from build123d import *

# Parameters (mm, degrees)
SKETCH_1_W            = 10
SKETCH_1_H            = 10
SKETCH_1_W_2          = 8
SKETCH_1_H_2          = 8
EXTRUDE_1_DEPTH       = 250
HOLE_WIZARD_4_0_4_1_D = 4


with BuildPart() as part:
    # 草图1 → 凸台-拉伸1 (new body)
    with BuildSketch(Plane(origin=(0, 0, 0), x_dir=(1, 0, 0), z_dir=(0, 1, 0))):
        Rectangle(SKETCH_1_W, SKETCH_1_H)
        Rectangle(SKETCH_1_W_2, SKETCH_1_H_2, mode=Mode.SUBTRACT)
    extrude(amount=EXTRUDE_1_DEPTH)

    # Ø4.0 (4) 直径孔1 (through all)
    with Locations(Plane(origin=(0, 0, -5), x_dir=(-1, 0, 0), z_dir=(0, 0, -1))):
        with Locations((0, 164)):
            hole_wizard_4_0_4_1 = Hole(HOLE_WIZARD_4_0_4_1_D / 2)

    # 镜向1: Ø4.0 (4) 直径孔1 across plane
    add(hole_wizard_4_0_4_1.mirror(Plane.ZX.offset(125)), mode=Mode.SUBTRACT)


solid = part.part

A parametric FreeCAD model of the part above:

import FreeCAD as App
import Part
import Sketcher

V = App.Vector


def add_polygon(sketch, points):
    """Adds a closed chain of lines whose ends are joined by coincident constraints."""
    first, n = sketch.GeometryCount, len(points)
    for a, b in zip(points, points[1:] + points[:1]):
        sketch.addGeometry(Part.LineSegment(App.Vector(*a, 0), App.Vector(*b, 0)), False)
    for i in range(n):
        sketch.addConstraint(Sketcher.Constraint("Coincident", first + i, 2, first + (i + 1) % n, 1))

doc = App.newDocument("Part")
params = doc.addObject("Spreadsheet::Sheet", "Params")
for row, (alias, value) in enumerate([
    ("sketch1_width", "10 mm"),
    ("sketch1_width2", "8 mm"),
    ("pad1_length", "250 mm"),
    ("sketch2_diameter", "4 mm"),
    ("hole_diameter", "4 mm"),
], start=1):
    params.set(f"A{row}", alias)
    params.set(f"B{row}", "=" + value)
    params.setAlias(f"B{row}", alias)

body = doc.addObject("PartDesign::Body", "Body")

sketch1 = body.newObject("Sketcher::SketchObject", "Sketch")
sketch1.AttachmentSupport = (doc.getObject("XZ_Plane"), [""])
sketch1.MapMode = "FlatFace"
add_polygon(sketch1, [(-5, -5), (-5, 5), (5, 5), (5, -5)])
add_polygon(sketch1, [(4, 4), (-4, 4), (-4, -4), (4, -4)])
sketch1.addConstraint(Sketcher.Constraint("Vertical", 0))
sketch1.addConstraint(Sketcher.Constraint("Horizontal", 1))
sketch1.addConstraint(Sketcher.Constraint("Vertical", 2))
sketch1.addConstraint(Sketcher.Constraint("Horizontal", 3))
sketch1.addConstraint(Sketcher.Constraint("Horizontal", 4))
sketch1.addConstraint(Sketcher.Constraint("Vertical", 5))
sketch1.addConstraint(Sketcher.Constraint("Horizontal", 6))
sketch1.addConstraint(Sketcher.Constraint("Vertical", 7))
sketch1.addConstraint(Sketcher.Constraint("Symmetric", 0, 2, 2, 2, -1, 1))
sketch1.addConstraint(Sketcher.Constraint("Symmetric", 4, 2, 6, 2, -1, 1))
sketch1.addConstraint(Sketcher.Constraint("Equal", 3, 0))
sketch1.addConstraint(Sketcher.Constraint("Equal", 6, 5))
sketch1.addConstraint(Sketcher.Constraint("DistanceX", 1, 1, 1, 2, 10.0))
sketch1.addConstraint(Sketcher.Constraint("DistanceX", 4, 2, 4, 1, 8.0))
sketch1.setExpression("Constraints[20]", "Params.sketch1_width")
sketch1.setExpression("Constraints[21]", "Params.sketch1_width2")
pad1 = body.newObject("PartDesign::Pad", "Pad")
pad1.Profile = sketch1
pad1.setExpression("Length", "Params.pad1_length")
pad1.Reversed = True

sketch2 = body.newObject("Sketcher::SketchObject", "Sketch001")
sketch2.AttachmentSupport = (doc.getObject("XY_Plane"), [""])
sketch2.MapMode = "FlatFace"
sketch2.AttachmentOffset = App.Placement(V(0, 0, -5), App.Rotation())
sketch2.addGeometry(Part.Circle(V(0, 164, 0), V(0, 0, 1), 2), False)
sketch2.addConstraint(Sketcher.Constraint("PointOnObject", 0, 3, -2))
sketch2.addConstraint(Sketcher.Constraint("Diameter", 0, 4.0))
sketch2.addConstraint(Sketcher.Constraint("DistanceY", -1, 1, 0, 3, 164.0))
sketch2.setExpression("Constraints[1]", "Params.sketch2_diameter")
doc.recompute()
hole = body.newObject("PartDesign::Hole", "Hole")
hole.Profile = sketch2
hole.ThreadType = "None"
hole.setExpression("Diameter", "Params.hole_diameter")
hole.DepthType = "ThroughAll"
hole.Reversed = True
doc.recompute()

datumplane = body.newObject("PartDesign::Plane", "DatumPlane")
datumplane.AttachmentSupport = (doc.getObject("XZ_Plane"), [""])
datumplane.MapMode = "FlatFace"
datumplane.AttachmentOffset = App.Placement(V(0, 0, -125), App.Rotation())
mirrored = body.newObject("PartDesign::Mirrored", "Mirrored")
mirrored.Originals = [hole]
mirrored.MirrorPlane = (datumplane, [""])
body.Tip = mirrored

doc.recompute()
